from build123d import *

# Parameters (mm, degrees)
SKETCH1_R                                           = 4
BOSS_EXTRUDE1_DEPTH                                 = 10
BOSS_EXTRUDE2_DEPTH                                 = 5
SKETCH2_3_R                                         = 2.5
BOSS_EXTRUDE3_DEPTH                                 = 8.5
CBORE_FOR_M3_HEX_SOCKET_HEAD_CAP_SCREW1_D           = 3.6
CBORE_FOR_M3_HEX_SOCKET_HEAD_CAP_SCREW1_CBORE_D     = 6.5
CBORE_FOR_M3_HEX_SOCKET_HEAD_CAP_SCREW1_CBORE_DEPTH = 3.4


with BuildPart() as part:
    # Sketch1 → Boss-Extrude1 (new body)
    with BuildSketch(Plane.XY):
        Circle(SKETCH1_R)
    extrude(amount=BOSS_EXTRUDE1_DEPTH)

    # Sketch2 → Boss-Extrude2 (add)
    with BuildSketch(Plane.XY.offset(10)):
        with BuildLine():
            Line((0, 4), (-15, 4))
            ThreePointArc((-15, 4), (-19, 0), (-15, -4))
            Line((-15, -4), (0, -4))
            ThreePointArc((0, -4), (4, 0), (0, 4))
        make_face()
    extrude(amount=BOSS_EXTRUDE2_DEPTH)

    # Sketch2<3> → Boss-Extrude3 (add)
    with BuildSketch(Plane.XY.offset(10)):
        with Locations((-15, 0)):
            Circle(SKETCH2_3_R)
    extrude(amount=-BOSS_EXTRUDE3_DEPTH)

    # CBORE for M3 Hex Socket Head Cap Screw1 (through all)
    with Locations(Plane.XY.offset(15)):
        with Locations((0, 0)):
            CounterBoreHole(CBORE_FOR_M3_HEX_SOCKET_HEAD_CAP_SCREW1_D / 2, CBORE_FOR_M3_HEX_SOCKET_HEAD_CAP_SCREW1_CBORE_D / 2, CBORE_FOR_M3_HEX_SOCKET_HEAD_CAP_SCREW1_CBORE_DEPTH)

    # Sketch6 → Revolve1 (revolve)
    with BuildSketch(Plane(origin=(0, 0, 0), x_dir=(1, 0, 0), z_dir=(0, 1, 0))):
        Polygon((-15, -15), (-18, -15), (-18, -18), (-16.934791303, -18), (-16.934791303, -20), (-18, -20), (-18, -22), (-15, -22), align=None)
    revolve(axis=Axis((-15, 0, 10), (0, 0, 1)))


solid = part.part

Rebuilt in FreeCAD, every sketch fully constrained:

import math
import FreeCAD as App
import Part
import Sketcher
from FreeCAD import Vector

doc = App.newDocument("Part")
body = doc.addObject("PartDesign::Body", "Body")

sketch1 = doc.addObject("Sketcher::SketchObject", "Sketch")
body.addObject(sketch1)
sketch1.AttachmentSupport = (doc.XY_Plane, [""])
sketch1.MapMode = "FlatFace"
sketch1.addGeometry(Part.Circle(Vector(0, 0, 0), Vector(0, 0, 1), 4), False)
sketch1.addConstraint([
    Sketcher.Constraint("Coincident", 0, 3, -1, 1),
    Sketcher.Constraint("Diameter", 0, 8.0),
])
pad1 = doc.addObject("PartDesign::Pad", "Pad")
body.addObject(pad1)
pad1.Profile = sketch1
pad1.Length = 10

sketch2 = doc.addObject("Sketcher::SketchObject", "Sketch001")
body.addObject(sketch2)
sketch2.AttachmentSupport = (doc.XY_Plane, [""])
sketch2.MapMode = "FlatFace"
sketch2.AttachmentOffset = App.Placement(Vector(0, 0, 10), App.Rotation())
sketch2.addGeometry([
    Part.LineSegment(Vector(0, 4, 0), Vector(-15, 4, 0)),
    Part.ArcOfCircle(Part.Circle(Vector(-15, 0, 0), Vector(0, 0, 1), 4), math.radians(90), math.radians(270)),
    Part.LineSegment(Vector(-15, -4, 0), Vector(0, -4, 0)),
    Part.ArcOfCircle(Part.Circle(Vector(0, 0, 0), Vector(0, 0, 1), 4), math.radians(-90), math.radians(90)),
], False)
sketch2.addConstraint([
    Sketcher.Constraint("Tangent", 0, 2, 1, 1),
    Sketcher.Constraint("Tangent", 1, 2, 2, 1),
    Sketcher.Constraint("Tangent", 2, 2, 3, 1),
    Sketcher.Constraint("Tangent", 3, 2, 0, 1),
    Sketcher.Constraint("Horizontal", 0),
    Sketcher.Constraint("Horizontal", 2),
    Sketcher.Constraint("Coincident", 3, 3, -1, 1),
    Sketcher.Constraint("Radius", 1, 4.0),
    Sketcher.Constraint("DistanceX", 0, 2, 0, 1, 15.0),
])
pad2 = doc.addObject("PartDesign::Pad", "Pad001")
body.addObject(pad2)
pad2.Profile = sketch2
pad2.Length = 5

sketch3 = doc.addObject("Sketcher::SketchObject", "Sketch002")
body.addObject(sketch3)
sketch3.AttachmentSupport = (doc.XY_Plane, [""])
sketch3.MapMode = "FlatFace"
sketch3.AttachmentOffset = App.Placement(Vector(0, 0, 10), App.Rotation())
sketch3.addGeometry(Part.Circle(Vector(-15, 0, 0), Vector(0, 0, 1), 2.5), False)
sketch3.addConstraint([
    Sketcher.Constraint("PointOnObject", 0, 3, -1),
    Sketcher.Constraint("Diameter", 0, 5.0),
    Sketcher.Constraint("DistanceX", 0, 3, -1, 1, 15.0),
])
pad3 = doc.addObject("PartDesign::Pad", "Pad002")
body.addObject(pad3)
pad3.Profile = sketch3
pad3.Length = 8.5
pad3.Reversed = True

sketch4 = doc.addObject("Sketcher::SketchObject", "Sketch003")
body.addObject(sketch4)
sketch4.AttachmentSupport = (doc.XY_Plane, [""])
sketch4.MapMode = "FlatFace"
sketch4.AttachmentOffset = App.Placement(Vector(0, 0, 15), App.Rotation())
sketch4.addGeometry(Part.Circle(Vector(0, 0, 0), Vector(0, 0, 1), 1.8), False)
sketch4.addConstraint([
    Sketcher.Constraint("Coincident", 0, 3, -1, 1),
    Sketcher.Constraint("Diameter", 0, 3.6),
])
doc.recompute()
hole = doc.addObject("PartDesign::Hole", "Hole")
body.addObject(hole)
hole.Profile = sketch4
hole.ThreadType = "None"
hole.Diameter = 3.6
hole.DepthType = "ThroughAll"
hole.HoleCutType = "Counterbore"
hole.HoleCutDiameter = 6.5
hole.HoleCutDepth = 3.4

sketch5 = doc.addObject("Sketcher::SketchObject", "Sketch004")
body.addObject(sketch5)
sketch5.AttachmentSupport = (doc.XZ_Plane, [""])
sketch5.MapMode = "FlatFace"
sketch5.addGeometry([
    Part.LineSegment(Vector(-15, 15, 0), Vector(-18, 15, 0)),
    Part.LineSegment(Vector(-18, 15, 0), Vector(-18, 18, 0)),
    Part.LineSegment(Vector(-18, 18, 0), Vector(-16.9, 18, 0)),
    Part.LineSegment(Vector(-16.9, 18, 0), Vector(-16.9, 20, 0)),
    Part.LineSegment(Vector(-16.9, 20, 0), Vector(-18, 20, 0)),
    Part.LineSegment(Vector(-18, 20, 0), Vector(-18, 22, 0)),
    Part.LineSegment(Vector(-18, 22, 0), Vector(-15, 22, 0)),
    Part.LineSegment(Vector(-15, 22, 0), Vector(-15, 15, 0)),
], False)
sketch5.addGeometry(Part.LineSegment(Vector(-15, 15, 0), Vector(-15, 22, 0)), True)
sketch5.addConstraint([
    Sketcher.Constraint("Coincident", 0, 2, 1, 1),
    Sketcher.Constraint("Coincident", 1, 2, 2, 1),
    Sketcher.Constraint("Coincident", 2, 2, 3, 1),
    Sketcher.Constraint("Coincident", 3, 2, 4, 1),
    Sketcher.Constraint("Coincident", 4, 2, 5, 1),
    Sketcher.Constraint("Coincident", 5, 2, 6, 1),
    Sketcher.Constraint("Coincident", 6, 2, 7, 1),
    Sketcher.Constraint("Coincident", 7, 2, 0, 1),
    Sketcher.Constraint("Horizontal", 0),
    Sketcher.Constraint("Vertical", 1),
    Sketcher.Constraint("Horizontal", 2),
    Sketcher.Constraint("Vertical", 3),
    Sketcher.Constraint("Horizontal", 4),
    Sketcher.Constraint("Vertical", 5),
    Sketcher.Constraint("Horizontal", 6),
    Sketcher.Constraint("Vertical", 7),
    Sketcher.Constraint("Vertical", 8),
    Sketcher.Constraint("Coincident", 8, 1, 7, 2),
    Sketcher.Constraint("Horizontal", 5, 2, 8, 2),
    Sketcher.Constraint("Vertical", 1, 2, 4, 2),
    Sketcher.Constraint("Equal", 6, 1),
    Sketcher.Constraint("Equal", 3, 5),
    Sketcher.Constraint("DistanceX", 0, 2, 0, 1, 3.0),
    Sketcher.Constraint("DistanceY", 3, 1, 3, 2, 2.0),
    Sketcher.Constraint("DistanceX", 0, 2, -1, 1, 18.0),
    Sketcher.Constraint("DistanceY", -1, 1, 0, 2, 15.0),
    Sketcher.Constraint("DistanceX", 2, 1, 2, 2, 1.065209),
])
revolution = doc.addObject("PartDesign::Revolution", "Revolution")
body.addObject(revolution)
revolution.Profile = sketch5
revolution.ReferenceAxis = (sketch5, ["Axis0"])
revolution.Angle = 360

doc.recompute()
